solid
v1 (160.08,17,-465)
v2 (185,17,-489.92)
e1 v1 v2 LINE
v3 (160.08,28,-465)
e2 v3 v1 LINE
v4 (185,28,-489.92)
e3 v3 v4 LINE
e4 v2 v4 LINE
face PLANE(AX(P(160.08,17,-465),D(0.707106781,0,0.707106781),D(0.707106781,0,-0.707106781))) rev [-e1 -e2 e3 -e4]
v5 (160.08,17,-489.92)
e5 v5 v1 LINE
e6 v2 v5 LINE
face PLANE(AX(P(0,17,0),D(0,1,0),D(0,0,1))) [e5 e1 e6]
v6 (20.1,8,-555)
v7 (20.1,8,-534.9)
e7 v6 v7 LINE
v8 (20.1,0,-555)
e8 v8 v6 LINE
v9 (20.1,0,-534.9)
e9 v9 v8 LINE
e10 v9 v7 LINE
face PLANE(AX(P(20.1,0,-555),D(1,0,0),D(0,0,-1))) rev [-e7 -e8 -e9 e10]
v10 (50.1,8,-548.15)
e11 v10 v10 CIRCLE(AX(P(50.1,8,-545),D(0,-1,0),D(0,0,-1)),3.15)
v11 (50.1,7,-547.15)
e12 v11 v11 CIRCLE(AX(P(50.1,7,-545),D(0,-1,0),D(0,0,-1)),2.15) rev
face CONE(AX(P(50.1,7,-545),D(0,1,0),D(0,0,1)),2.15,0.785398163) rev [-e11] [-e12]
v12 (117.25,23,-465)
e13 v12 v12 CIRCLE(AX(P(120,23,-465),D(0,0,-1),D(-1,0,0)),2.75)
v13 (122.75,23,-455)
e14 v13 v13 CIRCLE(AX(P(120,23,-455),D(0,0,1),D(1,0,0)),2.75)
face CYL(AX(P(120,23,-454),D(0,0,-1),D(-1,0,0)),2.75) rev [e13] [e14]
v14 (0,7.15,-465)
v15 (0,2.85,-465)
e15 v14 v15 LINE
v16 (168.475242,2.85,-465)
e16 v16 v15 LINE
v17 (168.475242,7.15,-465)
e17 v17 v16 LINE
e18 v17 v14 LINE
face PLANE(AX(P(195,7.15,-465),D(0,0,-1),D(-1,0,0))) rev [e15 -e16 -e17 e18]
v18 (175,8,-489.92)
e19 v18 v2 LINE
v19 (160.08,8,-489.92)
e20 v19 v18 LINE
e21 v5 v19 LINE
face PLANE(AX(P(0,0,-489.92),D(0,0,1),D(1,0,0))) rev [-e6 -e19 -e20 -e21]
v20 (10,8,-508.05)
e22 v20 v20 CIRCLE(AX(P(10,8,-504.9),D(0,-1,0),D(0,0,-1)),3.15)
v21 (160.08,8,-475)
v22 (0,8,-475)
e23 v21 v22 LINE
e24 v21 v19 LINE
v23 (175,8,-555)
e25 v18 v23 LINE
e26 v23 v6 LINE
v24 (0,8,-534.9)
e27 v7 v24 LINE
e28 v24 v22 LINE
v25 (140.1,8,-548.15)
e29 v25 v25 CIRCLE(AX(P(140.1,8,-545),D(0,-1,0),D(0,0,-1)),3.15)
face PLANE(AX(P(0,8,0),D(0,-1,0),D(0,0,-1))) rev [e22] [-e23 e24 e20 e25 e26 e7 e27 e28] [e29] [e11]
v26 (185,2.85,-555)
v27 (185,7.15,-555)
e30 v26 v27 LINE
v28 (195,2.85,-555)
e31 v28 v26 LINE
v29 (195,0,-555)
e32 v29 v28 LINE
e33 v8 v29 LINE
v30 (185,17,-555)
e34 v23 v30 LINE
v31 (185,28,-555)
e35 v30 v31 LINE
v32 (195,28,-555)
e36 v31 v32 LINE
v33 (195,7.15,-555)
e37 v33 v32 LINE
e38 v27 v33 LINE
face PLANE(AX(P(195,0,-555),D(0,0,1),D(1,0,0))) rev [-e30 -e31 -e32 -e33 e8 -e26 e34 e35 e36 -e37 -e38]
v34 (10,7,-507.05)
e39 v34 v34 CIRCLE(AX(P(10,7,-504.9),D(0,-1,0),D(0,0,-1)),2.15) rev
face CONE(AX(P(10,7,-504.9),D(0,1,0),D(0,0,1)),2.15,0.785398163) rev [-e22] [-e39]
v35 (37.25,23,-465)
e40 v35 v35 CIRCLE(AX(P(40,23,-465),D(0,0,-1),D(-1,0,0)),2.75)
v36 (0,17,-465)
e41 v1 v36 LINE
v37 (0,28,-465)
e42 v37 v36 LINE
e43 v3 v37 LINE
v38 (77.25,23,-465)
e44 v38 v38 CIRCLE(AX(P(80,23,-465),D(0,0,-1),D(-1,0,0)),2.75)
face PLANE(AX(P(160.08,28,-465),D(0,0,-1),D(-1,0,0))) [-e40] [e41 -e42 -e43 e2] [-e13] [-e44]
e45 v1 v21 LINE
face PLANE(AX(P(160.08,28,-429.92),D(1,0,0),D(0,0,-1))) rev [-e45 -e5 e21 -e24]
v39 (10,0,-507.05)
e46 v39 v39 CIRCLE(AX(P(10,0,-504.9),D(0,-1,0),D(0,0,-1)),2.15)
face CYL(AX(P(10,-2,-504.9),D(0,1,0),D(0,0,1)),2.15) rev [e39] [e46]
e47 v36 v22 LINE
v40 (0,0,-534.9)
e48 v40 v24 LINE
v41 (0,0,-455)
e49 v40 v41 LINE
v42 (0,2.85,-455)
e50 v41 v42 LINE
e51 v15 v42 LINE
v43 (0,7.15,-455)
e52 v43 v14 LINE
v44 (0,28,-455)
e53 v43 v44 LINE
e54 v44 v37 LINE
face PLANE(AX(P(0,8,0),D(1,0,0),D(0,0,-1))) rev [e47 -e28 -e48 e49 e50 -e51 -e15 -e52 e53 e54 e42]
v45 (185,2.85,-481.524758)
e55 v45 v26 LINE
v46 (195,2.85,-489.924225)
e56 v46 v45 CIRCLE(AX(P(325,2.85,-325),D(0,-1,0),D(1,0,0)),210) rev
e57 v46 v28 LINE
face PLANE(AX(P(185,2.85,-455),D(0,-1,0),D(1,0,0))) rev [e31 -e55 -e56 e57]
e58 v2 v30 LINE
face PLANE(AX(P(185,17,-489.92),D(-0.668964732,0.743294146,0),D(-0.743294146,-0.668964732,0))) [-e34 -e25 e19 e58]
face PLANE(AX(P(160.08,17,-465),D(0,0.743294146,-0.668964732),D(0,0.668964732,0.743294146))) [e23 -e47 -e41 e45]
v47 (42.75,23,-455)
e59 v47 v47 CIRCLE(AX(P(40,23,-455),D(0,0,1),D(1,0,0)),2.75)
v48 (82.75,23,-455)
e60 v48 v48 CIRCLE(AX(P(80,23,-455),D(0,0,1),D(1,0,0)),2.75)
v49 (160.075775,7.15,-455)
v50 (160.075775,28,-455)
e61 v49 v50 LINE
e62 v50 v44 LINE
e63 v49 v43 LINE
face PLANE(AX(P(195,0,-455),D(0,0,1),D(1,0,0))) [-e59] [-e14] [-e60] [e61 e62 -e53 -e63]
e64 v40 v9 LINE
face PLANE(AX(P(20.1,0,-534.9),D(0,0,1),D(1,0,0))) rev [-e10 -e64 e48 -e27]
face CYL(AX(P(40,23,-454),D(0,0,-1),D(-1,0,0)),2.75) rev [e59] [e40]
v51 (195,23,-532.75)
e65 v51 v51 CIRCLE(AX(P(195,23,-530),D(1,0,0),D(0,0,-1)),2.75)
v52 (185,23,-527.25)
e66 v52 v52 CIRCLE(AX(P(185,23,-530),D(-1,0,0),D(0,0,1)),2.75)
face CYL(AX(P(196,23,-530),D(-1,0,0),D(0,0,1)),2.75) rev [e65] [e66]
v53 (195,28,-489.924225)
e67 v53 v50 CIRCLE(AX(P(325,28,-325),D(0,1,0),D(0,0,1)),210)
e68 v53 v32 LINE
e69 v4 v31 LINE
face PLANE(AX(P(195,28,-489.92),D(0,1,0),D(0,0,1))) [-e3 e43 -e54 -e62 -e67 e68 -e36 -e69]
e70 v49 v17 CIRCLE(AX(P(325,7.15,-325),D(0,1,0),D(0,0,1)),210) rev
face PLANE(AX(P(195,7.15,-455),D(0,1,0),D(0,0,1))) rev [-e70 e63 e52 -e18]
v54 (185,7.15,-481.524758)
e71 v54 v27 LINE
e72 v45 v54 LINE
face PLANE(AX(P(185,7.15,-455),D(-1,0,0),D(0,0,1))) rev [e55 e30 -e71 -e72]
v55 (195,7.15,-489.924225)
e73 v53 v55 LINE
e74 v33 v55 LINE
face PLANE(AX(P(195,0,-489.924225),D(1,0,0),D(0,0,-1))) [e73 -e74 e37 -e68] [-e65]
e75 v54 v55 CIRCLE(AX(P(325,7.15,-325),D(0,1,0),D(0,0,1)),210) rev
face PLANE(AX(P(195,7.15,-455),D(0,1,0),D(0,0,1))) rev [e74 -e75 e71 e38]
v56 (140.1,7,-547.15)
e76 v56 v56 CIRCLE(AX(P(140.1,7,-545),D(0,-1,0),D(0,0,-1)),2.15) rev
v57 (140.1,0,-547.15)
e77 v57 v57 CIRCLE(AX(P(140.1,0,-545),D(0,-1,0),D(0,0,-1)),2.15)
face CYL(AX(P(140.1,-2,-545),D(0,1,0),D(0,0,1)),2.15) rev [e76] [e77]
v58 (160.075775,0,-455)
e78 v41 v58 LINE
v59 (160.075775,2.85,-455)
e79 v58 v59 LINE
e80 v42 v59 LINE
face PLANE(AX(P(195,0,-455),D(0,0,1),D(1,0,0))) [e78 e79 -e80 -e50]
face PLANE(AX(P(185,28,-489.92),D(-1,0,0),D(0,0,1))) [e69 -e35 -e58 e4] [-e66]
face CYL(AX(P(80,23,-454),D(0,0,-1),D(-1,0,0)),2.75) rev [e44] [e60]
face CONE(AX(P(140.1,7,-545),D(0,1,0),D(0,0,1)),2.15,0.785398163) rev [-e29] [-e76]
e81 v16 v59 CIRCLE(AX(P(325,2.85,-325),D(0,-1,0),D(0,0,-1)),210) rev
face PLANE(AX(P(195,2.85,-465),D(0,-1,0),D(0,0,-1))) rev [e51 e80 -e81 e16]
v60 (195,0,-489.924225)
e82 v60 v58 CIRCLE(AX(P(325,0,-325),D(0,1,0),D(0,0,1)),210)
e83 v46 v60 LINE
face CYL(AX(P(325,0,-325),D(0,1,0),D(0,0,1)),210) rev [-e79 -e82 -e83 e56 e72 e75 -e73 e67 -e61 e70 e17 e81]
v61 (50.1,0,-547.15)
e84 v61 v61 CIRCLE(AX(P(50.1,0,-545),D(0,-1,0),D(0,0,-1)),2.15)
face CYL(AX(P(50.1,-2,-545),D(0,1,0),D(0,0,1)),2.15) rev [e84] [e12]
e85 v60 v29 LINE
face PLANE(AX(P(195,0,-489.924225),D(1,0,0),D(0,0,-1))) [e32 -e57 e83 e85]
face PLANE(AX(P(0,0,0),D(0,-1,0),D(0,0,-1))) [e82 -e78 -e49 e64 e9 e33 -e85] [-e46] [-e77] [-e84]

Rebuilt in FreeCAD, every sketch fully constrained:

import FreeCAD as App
import Part
import Sketcher
from FreeCAD import Vector


def edges_at(feature, points):
    """Names of the edges that pass closest to the given points."""
    edges = feature.Shape.Edges
    near = lambda p: min(range(len(edges)), key=lambda i: edges[i].distToShape(Part.Vertex(*p))[0])
    return sorted({f"Edge{near(p) + 1}" for p in points})

doc = App.newDocument("Part")
body = doc.addObject("PartDesign::Body", "Body")

# Sketch on XZ plane
sketch1 = body.newObject("Sketcher::SketchObject", "Sketch")
sketch1.AttachmentSupport = (doc.getObject("XZ_Plane"), [""])
sketch1.MapMode = "FlatFace"
sketch1.addGeometry(Part.LineSegment(Vector(0, -650, 0), Vector(0, 0, 0)), False)
sketch1.addGeometry(Part.LineSegment(Vector(0, 0, 0), Vector(650, 0, 0)), False)
sketch1.addGeometry(Part.LineSegment(Vector(650, 0, 0), Vector(650, -650, 0)), False)
sketch1.addGeometry(Part.LineSegment(Vector(650, -650, 0), Vector(0, -650, 0)), False)
sketch1.addConstraint(Sketcher.Constraint("Coincident", 0, 2, 1, 1))
sketch1.addConstraint(Sketcher.Constraint("Coincident", 1, 2, 2, 1))
sketch1.addConstraint(Sketcher.Constraint("Coincident", 2, 2, 3, 1))
sketch1.addConstraint(Sketcher.Constraint("Coincident", 3, 2, 0, 1))
sketch1.addConstraint(Sketcher.Constraint("Vertical", 0))
sketch1.addConstraint(Sketcher.Constraint("Horizontal", 1))
sketch1.addConstraint(Sketcher.Constraint("Vertical", 2))
sketch1.addConstraint(Sketcher.Constraint("Horizontal", 3))
sketch1.addConstraint(Sketcher.Constraint("Coincident", 0, 2, -1, 1))
sketch1.addConstraint(Sketcher.Constraint("Equal", 3, 0))
sketch1.addConstraint(Sketcher.Constraint("DistanceX", 1, 1, 1, 2, 650.0))
pad1 = body.newObject("PartDesign::Pad", "Pad")
pad1.Profile = sketch1
pad1.Length = 8
pad1.Reversed = True

# Sketch on XY plane
sketch2 = body.newObject("Sketcher::SketchObject", "Sketch001")
sketch2.AttachmentSupport = (doc.getObject("XY_Plane"), [""])
sketch2.MapMode = "FlatFace"
sketch2.addGeometry(Part.LineSegment(Vector(350, 43.707142, 0), Vector(300, 43.707142, 0)), False)
sketch2.addGeometry(Part.LineSegment(Vector(300, 43.707142, 0), Vector(265, 8, 0)), False)
sketch2.addGeometry(Part.LineSegment(Vector(265, 8, 0), Vector(385, 8, 0)), False)
sketch2.addGeometry(Part.LineSegment(Vector(385, 8, 0), Vector(350, 43.707142, 0)), False)
sketch2.addConstraint(Sketcher.Constraint("Coincident", 0, 2, 1, 1))
sketch2.addConstraint(Sketcher.Constraint("Coincident", 1, 2, 2, 1))
sketch2.addConstraint(Sketcher.Constraint("Coincident", 2, 2, 3, 1))
sketch2.addConstraint(Sketcher.Constraint("Coincident", 3, 2, 0, 1))
sketch2.addConstraint(Sketcher.Constraint("Horizontal", 0))
sketch2.addConstraint(Sketcher.Constraint("Horizontal", 2))
sketch2.addConstraint(Sketcher.Constraint("Equal", 1, 3))
sketch2.addConstraint(Sketcher.Constraint("DistanceX", 0, 2, 0, 1, 50.0))
sketch2.addConstraint(Sketcher.Constraint("DistanceX", 2, 1, 2, 2, 120.0))
sketch2.addConstraint(Sketcher.Constraint("Distance", 1, 50.0))
sketch2.addConstraint(Sketcher.Constraint("DistanceX", -1, 1, 0, 2, 300.0))
sketch2.addConstraint(Sketcher.Constraint("DistanceY", -1, 1, 1, 2, 8.0))
pad2 = body.newObject("PartDesign::Pad", "Pad001")
pad2.Profile = sketch2
pad2.Length = 650
pad2.Reversed = True

# Sketch on XY plane
sketch3 = body.newObject("Sketcher::SketchObject", "Sketch002")
sketch3.AttachmentSupport = (doc.getObject("XY_Plane"), [""])
sketch3.MapMode = "FlatFace"
sketch3.addGeometry(Part.Circle(Vector(325, 22, 0), Vector(0, 0, 1), 11), False)
sketch3.addConstraint(Sketcher.Constraint("Diameter", 0, 22.0))
sketch3.addConstraint(Sketcher.Constraint("DistanceX", -1, 1, 0, 3, 325.0))
sketch3.addConstraint(Sketcher.Constraint("DistanceY", -1, 1, 0, 3, 22.0))
pocket1 = body.newObject("PartDesign::Pocket", "Pocket")
pocket1.Profile = sketch3
pocket1.Type = "ThroughAll"
pocket1.Midplane = True

# Sketch on XZ plane
sketch4 = body.newObject("Sketcher::SketchObject", "Sketch003")
sketch4.AttachmentSupport = (doc.getObject("XZ_Plane"), [""])
sketch4.MapMode = "FlatFace"
sketch4.AttachmentOffset = App.Placement(Vector(0, 0, -8), App.Rotation())
sketch4.addGeometry(Part.Circle(Vector(325, -325, 0), Vector(0, 0, 1), 210), False)
sketch4.addConstraint(Sketcher.Constraint("Diameter", 0, 420.0))
sketch4.addConstraint(Sketcher.Constraint("DistanceX", -1, 1, 0, 3, 325.0))
sketch4.addConstraint(Sketcher.Constraint("DistanceY", 0, 3, -1, 1, 325.0))
pocket2 = body.newObject("PartDesign::Pocket", "Pocket001")
pocket2.Profile = sketch4
pocket2.Type = "ThroughAll"
pocket2.Midplane = True

# Sketch on XY plane
sketch5 = body.newObject("Sketcher::SketchObject", "Sketch004")
sketch5.AttachmentSupport = (doc.getObject("XY_Plane"), [""])
sketch5.MapMode = "FlatFace"
sketch5.addGeometry(Part.LineSegment(Vector(350, 43.707142, 0), Vector(300, 43.707142, 0)), False)
sketch5.addGeometry(Part.LineSegment(Vector(300, 43.707142, 0), Vector(284.603921, 28, 0)), False)
sketch5.addGeometry(Part.LineSegment(Vector(284.603921, 28, 0), Vector(300, 28, 0)), False)
sketch5.addGeometry(Part.LineSegment(Vector(300, 28, 0), Vector(300, 8, 0)), False)
sketch5.addGeometry(Part.LineSegment(Vector(300, 8, 0), Vector(350, 8, 0)), False)
sketch5.addGeometry(Part.LineSegment(Vector(350, 8, 0), Vector(350, 28, 0)), False)
sketch5.addGeometry(Part.LineSegment(Vector(350, 28, 0), Vector(365.396079, 28, 0)), False)
sketch5.addGeometry(Part.LineSegment(Vector(365.396079, 28, 0), Vector(350, 43.707142, 0)), False)
sketch5.addConstraint(Sketcher.Constraint("Coincident", 0, 2, 1, 1))
sketch5.addConstraint(Sketcher.Constraint("Coincident", 1, 2, 2, 1))
sketch5.addConstraint(Sketcher.Constraint("Coincident", 2, 2, 3, 1))
sketch5.addConstraint(Sketcher.Constraint("Coincident", 3, 2, 4, 1))
sketch5.addConstraint(Sketcher.Constraint("Coincident", 4, 2, 5, 1))
sketch5.addConstraint(Sketcher.Constraint("Coincident", 5, 2, 6, 1))
sketch5.addConstraint(Sketcher.Constraint("Coincident", 6, 2, 7, 1))
sketch5.addConstraint(Sketcher.Constraint("Coincident", 7, 2, 0, 1))
sketch5.addConstraint(Sketcher.Constraint("Horizontal", 0))
sketch5.addConstraint(Sketcher.Constraint("Horizontal", 2))
sketch5.addConstraint(Sketcher.Constraint("Vertical", 3))
sketch5.addConstraint(Sketcher.Constraint("Horizontal", 4))
sketch5.addConstraint(Sketcher.Constraint("Vertical", 5))
sketch5.addConstraint(Sketcher.Constraint("Horizontal", 6))
sketch5.addConstraint(Sketcher.Constraint("Horizontal", 2, 2, 5, 2))
sketch5.addConstraint(Sketcher.Constraint("Vertical", 0, 2, 2, 2))
sketch5.addConstraint(Sketcher.Constraint("Vertical", 5, 2, 7, 2))
sketch5.addConstraint(Sketcher.Constraint("Equal", 2, 6))
sketch5.addConstraint(Sketcher.Constraint("DistanceX", 0, 2, 0, 1, 50.0))
sketch5.addConstraint(Sketcher.Constraint("DistanceY", 3, 2, 3, 1, 20.0))
sketch5.addConstraint(Sketcher.Constraint("DistanceX", -1, 1, 0, 2, 300.0))
sketch5.addConstraint(Sketcher.Constraint("DistanceY", -1, 1, 1, 2, 28.0))
sketch5.addConstraint(Sketcher.Constraint("Distance", 1, 21.994398))
sketch5.addConstraint(Sketcher.Constraint("DistanceX", 2, 1, 2, 2, 15.396079))
pocket3 = body.newObject("PartDesign::Pocket", "Pocket002")
pocket3.Profile = sketch5
pocket3.Type = "TwoLengths"
pocket3.Length = 921.277303
pocket3.Length2 = 110
pocket3.Reversed = True

# Sketch on XY plane
sketch6 = body.newObject("Sketcher::SketchObject", "Sketch005")
sketch6.AttachmentSupport = (doc.getObject("XY_Plane"), [""])
sketch6.MapMode = "FlatFace"
sketch6.AttachmentOffset = App.Placement(Vector(0, 0, -650), App.Rotation())
sketch6.addGeometry(Part.LineSegment(Vector(300, 43.707142, 0), Vector(350, 43.707142, 0)), False)
sketch6.addGeometry(Part.LineSegment(Vector(350, 43.707142, 0), Vector(365.396079, 28, 0)), False)
sketch6.addGeometry(Part.LineSegment(Vector(365.396079, 28, 0), Vector(350, 28, 0)), False)
sketch6.addGeometry(Part.LineSegment(Vector(350, 28, 0), Vector(350, 8, 0)), False)
sketch6.addGeometry(Part.LineSegment(Vector(350, 8, 0), Vector(300, 8, 0)), False)
sketch6.addGeometry(Part.LineSegment(Vector(300, 8, 0), Vector(300, 28, 0)), False)
sketch6.addGeometry(Part.LineSegment(Vector(300, 28, 0), Vector(284.603921, 28, 0)), False)
sketch6.addGeometry(Part.LineSegment(Vector(284.603921, 28, 0), Vector(300, 43.707142, 0)), False)
sketch6.addConstraint(Sketcher.Constraint("Coincident", 0, 2, 1, 1))
sketch6.addConstraint(Sketcher.Constraint("Coincident", 1, 2, 2, 1))
sketch6.addConstraint(Sketcher.Constraint("Coincident", 2, 2, 3, 1))
sketch6.addConstraint(Sketcher.Constraint("Coincident", 3, 2, 4, 1))
sketch6.addConstraint(Sketcher.Constraint("Coincident", 4, 2, 5, 1))
sketch6.addConstraint(Sketcher.Constraint("Coincident", 5, 2, 6, 1))
sketch6.addConstraint(Sketcher.Constraint("Coincident", 6, 2, 7, 1))
sketch6.addConstraint(Sketcher.Constraint("Coincident", 7, 2, 0, 1))
sketch6.addConstraint(Sketcher.Constraint("Horizontal", 0))
sketch6.addConstraint(Sketcher.Constraint("Horizontal", 2))
sketch6.addConstraint(Sketcher.Constraint("Vertical", 3))
sketch6.addConstraint(Sketcher.Constraint("Horizontal", 4))
sketch6.addConstraint(Sketcher.Constraint("Vertical", 5))
sketch6.addConstraint(Sketcher.Constraint("Horizontal", 6))
sketch6.addConstraint(Sketcher.Constraint("Horizontal", 2, 2, 5, 2))
sketch6.addConstraint(Sketcher.Constraint("Vertical", 0, 2, 2, 2))
sketch6.addConstraint(Sketcher.Constraint("Vertical", 5, 2, 7, 2))
sketch6.addConstraint(Sketcher.Constraint("Equal", 2, 6))
sketch6.addConstraint(Sketcher.Constraint("DistanceX", 0, 1, 0, 2, 50.0))
sketch6.addConstraint(Sketcher.Constraint("DistanceY", 3, 2, 3, 1, 20.0))
sketch6.addConstraint(Sketcher.Constraint("DistanceX", -1, 1, 0, 2, 350.0))
sketch6.addConstraint(Sketcher.Constraint("DistanceY", -1, 1, 1, 2, 28.0))
sketch6.addConstraint(Sketcher.Constraint("Distance", 1, 21.994398))
sketch6.addConstraint(Sketcher.Constraint("DistanceX", 2, 2, 2, 1, 15.396079))
pocket4 = body.newObject("PartDesign::Pocket", "Pocket003")
pocket4.Profile = sketch6
pocket4.Length = 110
pocket4.Reversed = True

# Sketch on XZ plane
sketch7 = body.newObject("Sketcher::SketchObject", "Sketch006")
sketch7.AttachmentSupport = (doc.getObject("XZ_Plane"), [""])
sketch7.MapMode = "FlatFace"
sketch7.AttachmentOffset = App.Placement(Vector(0, 0, -8), App.Rotation())
sketch7.addGeometry(Part.LineSegment(Vector(-93.028, -743.028, 0), Vector(-93.028, 93.028, 0)), False)
sketch7.addGeometry(Part.LineSegment(Vector(-93.028, 93.028, 0), Vector(743.028, 93.028, 0)), False)
sketch7.addGeometry(Part.LineSegment(Vector(743.028, 93.028, 0), Vector(743.028, -743.028, 0)), False)
sketch7.addGeometry(Part.LineSegment(Vector(743.028, -743.028, 0), Vector(-93.028, -743.028, 0)), False)
sketch7.addGeometry(Part.LineSegment(Vector(195, -650, 0), Vector(195, -455, 0)), False)
sketch7.addGeometry(Part.LineSegment(Vector(195, -455, 0), Vector(0, -455, 0)), False)
sketch7.addGeometry(Part.LineSegment(Vector(0, -455, 0), Vector(-70.838919, -472.462113, 0)), False)
sketch7.addGeometry(Part.LineSegment(Vector(-70.838919, -472.462113, 0), Vector(-70.838919, -686.544505, 0)), False)
sketch7.addGeometry(Part.LineSegment(Vector(-70.838919, -686.544505, 0), Vector(167.478198, -686.544505, 0)), False)
sketch7.addGeometry(Part.LineSegment(Vector(167.478198, -686.544505, 0), Vector(195, -650, 0)), False)
sketch7.addConstraint(Sketcher.Constraint("Coincident", 0, 2, 1, 1))
sketch7.addConstraint(Sketcher.Constraint("Coincident", 1, 2, 2, 1))
sketch7.addConstraint(Sketcher.Constraint("Coincident", 2, 2, 3, 1))
sketch7.addConstraint(Sketcher.Constraint("Coincident", 3, 2, 0, 1))
sketch7.addConstraint(Sketcher.Constraint("Coincident", 4, 2, 5, 1))
sketch7.addConstraint(Sketcher.Constraint("Coincident", 5, 2, 6, 1))
sketch7.addConstraint(Sketcher.Constraint("Coincident", 6, 2, 7, 1))
sketch7.addConstraint(Sketcher.Constraint("Coincident", 7, 2, 8, 1))
sketch7.addConstraint(Sketcher.Constraint("Coincident", 8, 2, 9, 1))
sketch7.addConstraint(Sketcher.Constraint("Coincident", 9, 2, 4, 1))
sketch7.addConstraint(Sketcher.Constraint("Vertical", 0))
sketch7.addConstraint(Sketcher.Constraint("Horizontal", 1))
sketch7.addConstraint(Sketcher.Constraint("Vertical", 2))
sketch7.addConstraint(Sketcher.Constraint("Horizontal", 3))
sketch7.addConstraint(Sketcher.Constraint("Vertical", 4))
sketch7.addConstraint(Sketcher.Constraint("Horizontal", 5))
sketch7.addConstraint(Sketcher.Constraint("Vertical", 7))
sketch7.addConstraint(Sketcher.Constraint("Horizontal", 8))
sketch7.addConstraint(Sketcher.Constraint("PointOnObject", 5, 2, -2))
sketch7.addConstraint(Sketcher.Constraint("Equal", 3, 0))
sketch7.addConstraint(Sketcher.Constraint("Equal", 5, 4))
sketch7.addConstraint(Sketcher.Constraint("DistanceX", 5, 2, 5, 1, 195.0))
sketch7.addConstraint(Sketcher.Constraint("DistanceY", 4, 2, -1, 1, 455.0))
sketch7.addConstraint(Sketcher.Constraint("DistanceX", 1, 1, 1, 2, 836.056))
sketch7.addConstraint(Sketcher.Constraint("DistanceX", 0, 2, -1, 1, 93.028))
sketch7.addConstraint(Sketcher.Constraint("DistanceY", -1, 1, 0, 2, 93.028))
sketch7.addConstraint(Sketcher.Constraint("DistanceY", 7, 2, 7, 1, 214.082392))
sketch7.addConstraint(Sketcher.Constraint("DistanceX", -1, 1, 8, 2, 167.478198))
sketch7.addConstraint(Sketcher.Constraint("DistanceX", 8, 1, 8, 2, 238.317117))
sketch7.addConstraint(Sketcher.Constraint("Distance", 6, 72.959426))
pocket5 = body.newObject("PartDesign::Pocket", "Pocket004")
pocket5.Profile = sketch7
pocket5.Type = "ThroughAll"
pocket5.Midplane = True

# Sketch on XY plane
sketch8 = body.newObject("Sketcher::SketchObject", "Sketch007")
sketch8.AttachmentSupport = (doc.getObject("XY_Plane"), [""])
sketch8.MapMode = "FlatFace"
sketch8.AttachmentOffset = App.Placement(Vector(0, 0, -650), App.Rotation())
sketch8.addGeometry(Part.LineSegment(Vector(195, 28, 0), Vector(195, 8, 0)), False)
sketch8.addGeometry(Part.LineSegment(Vector(195, 8, 0), Vector(175, 8, 0)), False)
sketch8.addGeometry(Part.LineSegment(Vector(175, 8, 0), Vector(185, 17, 0)), False)
sketch8.addGeometry(Part.LineSegment(Vector(185, 17, 0), Vector(185, 28, 0)), False)
sketch8.addGeometry(Part.LineSegment(Vector(185, 28, 0), Vector(195, 28, 0)), False)
sketch8.addConstraint(Sketcher.Constraint("Coincident", 0, 2, 1, 1))
sketch8.addConstraint(Sketcher.Constraint("Coincident", 1, 2, 2, 1))
sketch8.addConstraint(Sketcher.Constraint("Coincident", 2, 2, 3, 1))
sketch8.addConstraint(Sketcher.Constraint("Coincident", 3, 2, 4, 1))
sketch8.addConstraint(Sketcher.Constraint("Coincident", 4, 2, 0, 1))
sketch8.addConstraint(Sketcher.Constraint("Vertical", 0))
sketch8.addConstraint(Sketcher.Constraint("Horizontal", 1))
sketch8.addConstraint(Sketcher.Constraint("Vertical", 3))
sketch8.addConstraint(Sketcher.Constraint("Horizontal", 4))
sketch8.addConstraint(Sketcher.Constraint("Equal", 1, 0))
sketch8.addConstraint(Sketcher.Constraint("DistanceX", 1, 2, 1, 1, 20.0))
sketch8.addConstraint(Sketcher.Constraint("DistanceX", 4, 1, 4, 2, 10.0))
sketch8.addConstraint(Sketcher.Constraint("DistanceY", 3, 1, 3, 2, 11.0))
sketch8.addConstraint(Sketcher.Constraint("DistanceX", -1, 1, 0, 2, 195.0))
sketch8.addConstraint(Sketcher.Constraint("DistanceY", -1, 1, 0, 2, 8.0))
pad3 = body.newObject("PartDesign::Pad", "Pad002")
pad3.Profile = sketch8
pad3.Length = 160.08

# Sketch on YZ plane
sketch9 = body.newObject("Sketcher::SketchObject", "Sketch008")
sketch9.AttachmentSupport = (doc.getObject("YZ_Plane"), [""])
sketch9.MapMode = "FlatFace"
sketch9.addGeometry(Part.LineSegment(Vector(8, -455, 0), Vector(28, -455, 0)), False)
sketch9.addGeometry(Part.LineSegment(Vector(28, -455, 0), Vector(28, -465, 0)), False)
sketch9.addGeometry(Part.LineSegment(Vector(28, -465, 0), Vector(17, -465, 0)), False)
sketch9.addGeometry(Part.LineSegment(Vector(17, -465, 0), Vector(8, -475, 0)), False)
sketch9.addGeometry(Part.LineSegment(Vector(8, -475, 0), Vector(8, -455, 0)), False)
sketch9.addConstraint(Sketcher.Constraint("Coincident", 0, 2, 1, 1))
sketch9.addConstraint(Sketcher.Constraint("Coincident", 1, 2, 2, 1))
sketch9.addConstraint(Sketcher.Constraint("Coincident", 2, 2, 3, 1))
sketch9.addConstraint(Sketcher.Constraint("Coincident", 3, 2, 4, 1))
sketch9.addConstraint(Sketcher.Constraint("Coincident", 4, 2, 0, 1))
sketch9.addConstraint(Sketcher.Constraint("Horizontal", 0))
sketch9.addConstraint(Sketcher.Constraint("Vertical", 1))
sketch9.addConstraint(Sketcher.Constraint("Horizontal", 2))
sketch9.addConstraint(Sketcher.Constraint("Vertical", 4))
sketch9.addConstraint(Sketcher.Constraint("Equal", 0, 4))
sketch9.addConstraint(Sketcher.Constraint("DistanceX", 0, 1, 0, 2, 20.0))
sketch9.addConstraint(Sketcher.Constraint("DistanceX", 2, 2, 2, 1, 11.0))
sketch9.addConstraint(Sketcher.Constraint("DistanceY", 1, 2, 1, 1, 10.0))
sketch9.addConstraint(Sketcher.Constraint("DistanceX", -1, 1, 0, 2, 28.0))
sketch9.addConstraint(Sketcher.Constraint("DistanceY", 0, 2, -1, 1, 455.0))
pad4 = body.newObject("PartDesign::Pad", "Pad003")
pad4.Profile = sketch9
pad4.Length = 160.08

# Sketch on YZ plane
sketch10 = body.newObject("Sketcher::SketchObject", "Sketch009")
sketch10.AttachmentSupport = (doc.getObject("YZ_Plane"), [""])
sketch10.MapMode = "FlatFace"
sketch10.addGeometry(Part.LineSegment(Vector(7.15, -465, 0), Vector(2.85, -465, 0)), False)
sketch10.addGeometry(Part.LineSegment(Vector(2.85, -465, 0), Vector(2.85, -455, 0)), False)
sketch10.addGeometry(Part.LineSegment(Vector(2.85, -455, 0), Vector(7.15, -455, 0)), False)
sketch10.addGeometry(Part.LineSegment(Vector(7.15, -455, 0), Vector(7.15, -465, 0)), False)
sketch10.addConstraint(Sketcher.Constraint("Coincident", 0, 2, 1, 1))
sketch10.addConstraint(Sketcher.Constraint("Coincident", 1, 2, 2, 1))
sketch10.addConstraint(Sketcher.Constraint("Coincident", 2, 2, 3, 1))
sketch10.addConstraint(Sketcher.Constraint("Coincident", 3, 2, 0, 1))
sketch10.addConstraint(Sketcher.Constraint("Horizontal", 0))
sketch10.addConstraint(Sketcher.Constraint("Vertical", 1))
sketch10.addConstraint(Sketcher.Constraint("Horizontal", 2))
sketch10.addConstraint(Sketcher.Constraint("Vertical", 3))
sketch10.addConstraint(Sketcher.Constraint("DistanceY", 1, 1, 1, 2, 10.0))
sketch10.addConstraint(Sketcher.Constraint("DistanceX", 0, 2, 0, 1, 4.3))
sketch10.addConstraint(Sketcher.Constraint("DistanceY", 0, 2, -1, 1, 465.0))
sketch10.addConstraint(Sketcher.Constraint("DistanceX", -1, 1, 0, 2, 2.85))
pocket6 = body.newObject("PartDesign::Pocket", "Pocket005")
pocket6.Profile = sketch10
pocket6.Type = "ThroughAll"
pocket6.Reversed = True

# Sketch on XY plane
sketch11 = body.newObject("Sketcher::SketchObject", "Sketch010")
sketch11.AttachmentSupport = (doc.getObject("XY_Plane"), [""])
sketch11.MapMode = "FlatFace"
sketch11.AttachmentOffset = App.Placement(Vector(0, 0, -650), App.Rotation())
sketch11.addGeometry(Part.LineSegment(Vector(195, 7.15, 0), Vector(195, 2.85, 0)), False)
sketch11.addGeometry(Part.LineSegment(Vector(195, 2.85, 0), Vector(185, 2.85, 0)), False)
sketch11.addGeometry(Part.LineSegment(Vector(185, 2.85, 0), Vector(185, 7.15, 0)), False)
sketch11.addGeometry(Part.LineSegment(Vector(185, 7.15, 0), Vector(195, 7.15, 0)), False)
sketch11.addConstraint(Sketcher.Constraint("Coincident", 0, 2, 1, 1))
sketch11.addConstraint(Sketcher.Constraint("Coincident", 1, 2, 2, 1))
sketch11.addConstraint(Sketcher.Constraint("Coincident", 2, 2, 3, 1))
sketch11.addConstraint(Sketcher.Constraint("Coincident", 3, 2, 0, 1))
sketch11.addConstraint(Sketcher.Constraint("Vertical", 0))
sketch11.addConstraint(Sketcher.Constraint("Horizontal", 1))
sketch11.addConstraint(Sketcher.Constraint("Vertical", 2))
sketch11.addConstraint(Sketcher.Constraint("Horizontal", 3))
sketch11.addConstraint(Sketcher.Constraint("DistanceX", 1, 2, 1, 1, 10.0))
sketch11.addConstraint(Sketcher.Constraint("DistanceY", 0, 2, 0, 1, 4.3))
sketch11.addConstraint(Sketcher.Constraint("DistanceX", -1, 1, 0, 2, 195.0))
sketch11.addConstraint(Sketcher.Constraint("DistanceY", -1, 1, 0, 2, 2.85))
pocket7 = body.newObject("PartDesign::Pocket", "Pocket006")
pocket7.Profile = sketch11
pocket7.Type = "ThroughAll"
pocket7.Reversed = True

# Sketch on XY plane
sketch12 = body.newObject("Sketcher::SketchObject", "Sketch011")
sketch12.AttachmentSupport = (doc.getObject("XY_Plane"), [""])
sketch12.MapMode = "FlatFace"
sketch12.AttachmentOffset = App.Placement(Vector(0, 0, -489.92), App.Rotation())
sketch12.addGeometry(Part.LineSegment(Vector(194.99464, 8, 0), Vector(195, 28, 0)), False)
sketch12.addGeometry(Part.LineSegment(Vector(195, 28, 0), Vector(160.08, 28, 0)), False)
sketch12.addGeometry(Part.LineSegment(Vector(160.08, 28, 0), Vector(160.08, 8, 0)), False)
sketch12.addGeometry(Part.LineSegment(Vector(160.08, 8, 0), Vector(194.99464, 8, 0)), False)
sketch12.addConstraint(Sketcher.Constraint("Coincident", 0, 2, 1, 1))
sketch12.addConstraint(Sketcher.Constraint("Coincident", 1, 2, 2, 1))
sketch12.addConstraint(Sketcher.Constraint("Coincident", 2, 2, 3, 1))
sketch12.addConstraint(Sketcher.Constraint("Coincident", 3, 2, 0, 1))
sketch12.addConstraint(Sketcher.Constraint("Horizontal", 1))
sketch12.addConstraint(Sketcher.Constraint("Vertical", 2))
sketch12.addConstraint(Sketcher.Constraint("Horizontal", 3))
sketch12.addConstraint(Sketcher.Constraint("DistanceY", 2, 2, 2, 1, 20.0))
sketch12.addConstraint(Sketcher.Constraint("DistanceX", -1, 1, 0, 2, 195.0))
sketch12.addConstraint(Sketcher.Constraint("DistanceY", -1, 1, 0, 2, 28.0))
sketch12.addConstraint(Sketcher.Constraint("DistanceX", 1, 2, 1, 1, 34.92))
sketch12.addConstraint(Sketcher.Constraint("DistanceX", 3, 1, 3, 2, 34.91464))
pad5 = body.newObject("PartDesign::Pad", "Pad004")
pad5.Profile = sketch12
pad5.Length = 60

# Sketch on XZ plane
sketch13 = body.newObject("Sketcher::SketchObject", "Sketch012")
sketch13.AttachmentSupport = (doc.getObject("XZ_Plane"), [""])
sketch13.MapMode = "FlatFace"
sketch13.AttachmentOffset = App.Placement(Vector(0, 0, -8), App.Rotation())
sketch13.addGeometry(Part.Circle(Vector(325, -325, 0), Vector(0, 0, 1), 210), False)
sketch13.addConstraint(Sketcher.Constraint("Diameter", 0, 420.0))
sketch13.addConstraint(Sketcher.Constraint("DistanceX", -1, 1, 0, 3, 325.0))
sketch13.addConstraint(Sketcher.Constraint("DistanceY", 0, 3, -1, 1, 325.0))
pocket8 = body.newObject("PartDesign::Pocket", "Pocket007")
pocket8.Profile = sketch13
pocket8.Type = "ThroughAll"
pocket8.Midplane = True

# Sketch on XZ plane
sketch14 = body.newObject("Sketcher::SketchObject", "Sketch013")
sketch14.AttachmentSupport = (doc.getObject("XZ_Plane"), [""])
sketch14.MapMode = "FlatFace"
sketch14.AttachmentOffset = App.Placement(Vector(0, 0, -28), App.Rotation())
sketch14.addGeometry(Part.LineSegment(Vector(185, -489.92, 0), Vector(160.08, -489.92, 0)), False)
sketch14.addGeometry(Part.LineSegment(Vector(160.08, -489.92, 0), Vector(160.08, -465, 0)), False)
sketch14.addGeometry(Part.LineSegment(Vector(160.08, -465, 0), Vector(185, -489.92, 0)), False)
sketch14.addConstraint(Sketcher.Constraint("Coincident", 0, 2, 1, 1))
sketch14.addConstraint(Sketcher.Constraint("Coincident", 1, 2, 2, 1))
sketch14.addConstraint(Sketcher.Constraint("Coincident", 2, 2, 0, 1))
sketch14.addConstraint(Sketcher.Constraint("Horizontal", 0))
sketch14.addConstraint(Sketcher.Constraint("Vertical", 1))
sketch14.addConstraint(Sketcher.Constraint("Equal", 0, 1))
sketch14.addConstraint(Sketcher.Constraint("DistanceY", 1, 2, -1, 1, 465.0))
sketch14.addConstraint(Sketcher.Constraint("DistanceX", -1, 1, 2, 2, 185.0))
sketch14.addConstraint(Sketcher.Constraint("DistanceX", 0, 2, 0, 1, 24.92))
pocket9 = body.newObject("PartDesign::Pocket", "Pocket008")
pocket9.Profile = sketch14
pocket9.Length = 11
pocket9.Reversed = True

# Sketch on YZ plane
sketch15 = body.newObject("Sketcher::SketchObject", "Sketch014")
sketch15.AttachmentSupport = (doc.getObject("YZ_Plane"), [""])
sketch15.MapMode = "FlatFace"
sketch15.AttachmentOffset = App.Placement(Vector(0, 0, 185), App.Rotation())
sketch15.addGeometry(Part.Circle(Vector(23, -610, 0), Vector(0, 0, 1), 2.2), False)
sketch15.addGeometry(Part.Circle(Vector(23, -570, 0), Vector(0, 0, 1), 2.2), False)
sketch15.addGeometry(Part.Circle(Vector(23, -530, 0), Vector(0, 0, 1), 2.75), False)
sketch15.addConstraint(Sketcher.Constraint("Equal", 0, 1))
sketch15.addConstraint(Sketcher.Constraint("Vertical", 0, 3, 1, 3))
sketch15.addConstraint(Sketcher.Constraint("Vertical", 1, 3, 2, 3))
sketch15.addConstraint(Sketcher.Constraint("Diameter", 0, 4.4))
sketch15.addConstraint(Sketcher.Constraint("Diameter", 2, 5.5))
sketch15.addConstraint(Sketcher.Constraint("DistanceX", -1, 1, 0, 3, 23.0))
sketch15.addConstraint(Sketcher.Constraint("DistanceY", 0, 3, -1, 1, 610.0))
sketch15.addConstraint(Sketcher.Constraint("DistanceY", 1, 3, -1, 1, 570.0))
sketch15.addConstraint(Sketcher.Constraint("DistanceY", 2, 3, -1, 1, 530.0))
pocket10 = body.newObject("PartDesign::Pocket", "Pocket009")
pocket10.Profile = sketch15
pocket10.Length = 11
pocket10.Reversed = True

# Sketch on XY plane
sketch16 = body.newObject("Sketcher::SketchObject", "Sketch015")
sketch16.AttachmentSupport = (doc.getObject("XY_Plane"), [""])
sketch16.MapMode = "FlatFace"
sketch16.AttachmentOffset = App.Placement(Vector(0, 0, -465), App.Rotation())
sketch16.addGeometry(Part.Circle(Vector(120, 23, 0), Vector(0, 0, 1), 2.75), False)
sketch16.addGeometry(Part.Circle(Vector(80, 23, 0), Vector(0, 0, 1), 2.75), False)
sketch16.addGeometry(Part.Circle(Vector(40, 23, 0), Vector(0, 0, 1), 2.75), False)
sketch16.addConstraint(Sketcher.Constraint("Equal", 0, 1))
sketch16.addConstraint(Sketcher.Constraint("Equal", 1, 2))
sketch16.addConstraint(Sketcher.Constraint("Horizontal", 0, 3, 1, 3))
sketch16.addConstraint(Sketcher.Constraint("Horizontal", 1, 3, 2, 3))
sketch16.addConstraint(Sketcher.Constraint("Diameter", 0, 5.5))
sketch16.addConstraint(Sketcher.Constraint("DistanceX", -1, 1, 0, 3, 120.0))
sketch16.addConstraint(Sketcher.Constraint("DistanceY", -1, 1, 0, 3, 23.0))
sketch16.addConstraint(Sketcher.Constraint("DistanceX", -1, 1, 1, 3, 80.0))
sketch16.addConstraint(Sketcher.Constraint("DistanceX", -1, 1, 2, 3, 40.0))
pocket11 = body.newObject("PartDesign::Pocket", "Pocket010")
pocket11.Profile = sketch16
pocket11.Length = 11
pocket11.Reversed = True

# Sketch on XZ plane
sketch17 = body.newObject("Sketcher::SketchObject", "Sketch016")
sketch17.AttachmentSupport = (doc.getObject("XZ_Plane"), [""])
sketch17.MapMode = "FlatFace"
sketch17.AttachmentOffset = App.Placement(Vector(0, 0, -8), App.Rotation())
sketch17.addGeometry(Part.LineSegment(Vector(0, -650, 0), Vector(0, -630, 0)), False)
sketch17.addGeometry(Part.LineSegment(Vector(0, -630, 0), Vector(20, -630, 0)), False)
sketch17.addGeometry(Part.LineSegment(Vector(20, -630, 0), Vector(20, -650, 0)), False)
sketch17.addGeometry(Part.LineSegment(Vector(20, -650, 0), Vector(0, -650, 0)), False)
sketch17.addConstraint(Sketcher.Constraint("Coincident", 0, 2, 1, 1))
sketch17.addConstraint(Sketcher.Constraint("Coincident", 1, 2, 2, 1))
sketch17.addConstraint(Sketcher.Constraint("Coincident", 2, 2, 3, 1))
sketch17.addConstraint(Sketcher.Constraint("Coincident", 3, 2, 0, 1))
sketch17.addConstraint(Sketcher.Constraint("Vertical", 0))
sketch17.addConstraint(Sketcher.Constraint("Horizontal", 1))
sketch17.addConstraint(Sketcher.Constraint("Vertical", 2))
sketch17.addConstraint(Sketcher.Constraint("Horizontal", 3))
sketch17.addConstraint(Sketcher.Constraint("PointOnObject", 0, 2, -2))
sketch17.addConstraint(Sketcher.Constraint("Equal", 3, 0))
sketch17.addConstraint(Sketcher.Constraint("DistanceX", 1, 1, 1, 2, 20.0))
sketch17.addConstraint(Sketcher.Constraint("DistanceY", 0, 2, -1, 1, 630.0))
pocket12 = body.newObject("PartDesign::Pocket", "Pocket011")
pocket12.Profile = sketch17
pocket12.Length = 10
pocket12.Reversed = True

# Sketch on XZ plane
sketch18 = body.newObject("Sketcher::SketchObject", "Sketch017")
sketch18.AttachmentSupport = (doc.getObject("XZ_Plane"), [""])
sketch18.MapMode = "FlatFace"
sketch18.AttachmentOffset = App.Placement(Vector(0, 0, -8), App.Rotation())
sketch18.addGeometry(Part.LineSegment(Vector(0, -650, 0), Vector(0, -555, 0)), False)
sketch18.addGeometry(Part.LineSegment(Vector(0, -555, 0), Vector(195, -555, 0)), False)
sketch18.addGeometry(Part.LineSegment(Vector(195, -555, 0), Vector(195, -650, 0)), False)
sketch18.addGeometry(Part.LineSegment(Vector(195, -650, 0), Vector(0, -650, 0)), False)
sketch18.addConstraint(Sketcher.Constraint("Coincident", 0, 2, 1, 1))
sketch18.addConstraint(Sketcher.Constraint("Coincident", 1, 2, 2, 1))
sketch18.addConstraint(Sketcher.Constraint("Coincident", 2, 2, 3, 1))
sketch18.addConstraint(Sketcher.Constraint("Coincident", 3, 2, 0, 1))
sketch18.addConstraint(Sketcher.Constraint("Vertical", 0))
sketch18.addConstraint(Sketcher.Constraint("Horizontal", 1))
sketch18.addConstraint(Sketcher.Constraint("Vertical", 2))
sketch18.addConstraint(Sketcher.Constraint("Horizontal", 3))
sketch18.addConstraint(Sketcher.Constraint("PointOnObject", 0, 2, -2))
sketch18.addConstraint(Sketcher.Constraint("DistanceX", 1, 1, 1, 2, 195.0))
sketch18.addConstraint(Sketcher.Constraint("DistanceY", 0, 1, 0, 2, 95.0))
sketch18.addConstraint(Sketcher.Constraint("DistanceY", 0, 2, -1, 1, 555.0))
pocket13 = body.newObject("PartDesign::Pocket", "Pocket012")
pocket13.Profile = sketch18
pocket13.Type = "ThroughAll"
pocket13.Midplane = True

# Sketch on XZ plane
sketch19 = body.newObject("Sketcher::SketchObject", "Sketch018")
sketch19.AttachmentSupport = (doc.getObject("XZ_Plane"), [""])
sketch19.MapMode = "FlatFace"
sketch19.AttachmentOffset = App.Placement(Vector(0, 0, -8), App.Rotation())
sketch19.addGeometry(Part.LineSegment(Vector(0, -555, 0), Vector(0, -534.9, 0)), False)
sketch19.addGeometry(Part.LineSegment(Vector(0, -534.9, 0), Vector(20.1, -534.9, 0)), False)
sketch19.addGeometry(Part.LineSegment(Vector(20.1, -534.9, 0), Vector(20.1, -555, 0)), False)
sketch19.addGeometry(Part.LineSegment(Vector(20.1, -555, 0), Vector(0, -555, 0)), False)
sketch19.addConstraint(Sketcher.Constraint("Coincident", 0, 2, 1, 1))
sketch19.addConstraint(Sketcher.Constraint("Coincident", 1, 2, 2, 1))
sketch19.addConstraint(Sketcher.Constraint("Coincident", 2, 2, 3, 1))
sketch19.addConstraint(Sketcher.Constraint("Coincident", 3, 2, 0, 1))
sketch19.addConstraint(Sketcher.Constraint("Vertical", 0))
sketch19.addConstraint(Sketcher.Constraint("Horizontal", 1))
sketch19.addConstraint(Sketcher.Constraint("Vertical", 2))
sketch19.addConstraint(Sketcher.Constraint("Horizontal", 3))
sketch19.addConstraint(Sketcher.Constraint("PointOnObject", 0, 2, -2))
sketch19.addConstraint(Sketcher.Constraint("Equal", 3, 0))
sketch19.addConstraint(Sketcher.Constraint("DistanceX", 1, 1, 1, 2, 20.1))
sketch19.addConstraint(Sketcher.Constraint("DistanceY", 2, 2, -1, 1, 555.0))
pocket14 = body.newObject("PartDesign::Pocket", "Pocket013")
pocket14.Profile = sketch19
pocket14.Type = "ThroughAll"
pocket14.Midplane = True

# Sketch on XZ plane
sketch20 = body.newObject("Sketcher::SketchObject", "Sketch019")
sketch20.AttachmentSupport = (doc.getObject("XZ_Plane"), [""])
sketch20.MapMode = "FlatFace"
sketch20.AttachmentOffset = App.Placement(Vector(0, 0, -8), App.Rotation())
sketch20.addGeometry(Part.Circle(Vector(50.1, -545, 0), Vector(0, 0, 1), 2.15), False)
sketch20.addGeometry(Part.Circle(Vector(140.1, -545, 0), Vector(0, 0, 1), 2.15), False)
sketch20.addGeometry(Part.Circle(Vector(10, -504.9, 0), Vector(0, 0, 1), 2.15), False)
sketch20.addConstraint(Sketcher.Constraint("Equal", 0, 1))
sketch20.addConstraint(Sketcher.Constraint("Equal", 1, 2))
sketch20.addConstraint(Sketcher.Constraint("Horizontal", 0, 3, 1, 3))
sketch20.addConstraint(Sketcher.Constraint("Diameter", 0, 4.3))
sketch20.addConstraint(Sketcher.Constraint("DistanceY", 0, 3, -1, 1, 545.0))
sketch20.addConstraint(Sketcher.Constraint("DistanceX", -1, 1, 2, 3, 10.0))
sketch20.addConstraint(Sketcher.Constraint("DistanceX", 0, 3, 1, 3, 90.0))
sketch20.addConstraint(Sketcher.Constraint("DistanceX", -1, 1, 0, 3, 50.1))
sketch20.addConstraint(Sketcher.Constraint("DistanceY", 2, 3, -1, 1, 504.9))
pocket15 = body.newObject("PartDesign::Pocket", "Pocket014")
pocket15.Profile = sketch20
pocket15.Length = 10
pocket15.Reversed = True
doc.recompute()

chamfer = body.newObject("PartDesign::Chamfer", "Chamfer")
chamfer.Base = (pocket15, edges_at(pocket15, [(10, 8, -507.05), (140.1, 8, -547.15), (50.1, 8, -547.15)]))
chamfer.Size = 1

doc.recompute()
